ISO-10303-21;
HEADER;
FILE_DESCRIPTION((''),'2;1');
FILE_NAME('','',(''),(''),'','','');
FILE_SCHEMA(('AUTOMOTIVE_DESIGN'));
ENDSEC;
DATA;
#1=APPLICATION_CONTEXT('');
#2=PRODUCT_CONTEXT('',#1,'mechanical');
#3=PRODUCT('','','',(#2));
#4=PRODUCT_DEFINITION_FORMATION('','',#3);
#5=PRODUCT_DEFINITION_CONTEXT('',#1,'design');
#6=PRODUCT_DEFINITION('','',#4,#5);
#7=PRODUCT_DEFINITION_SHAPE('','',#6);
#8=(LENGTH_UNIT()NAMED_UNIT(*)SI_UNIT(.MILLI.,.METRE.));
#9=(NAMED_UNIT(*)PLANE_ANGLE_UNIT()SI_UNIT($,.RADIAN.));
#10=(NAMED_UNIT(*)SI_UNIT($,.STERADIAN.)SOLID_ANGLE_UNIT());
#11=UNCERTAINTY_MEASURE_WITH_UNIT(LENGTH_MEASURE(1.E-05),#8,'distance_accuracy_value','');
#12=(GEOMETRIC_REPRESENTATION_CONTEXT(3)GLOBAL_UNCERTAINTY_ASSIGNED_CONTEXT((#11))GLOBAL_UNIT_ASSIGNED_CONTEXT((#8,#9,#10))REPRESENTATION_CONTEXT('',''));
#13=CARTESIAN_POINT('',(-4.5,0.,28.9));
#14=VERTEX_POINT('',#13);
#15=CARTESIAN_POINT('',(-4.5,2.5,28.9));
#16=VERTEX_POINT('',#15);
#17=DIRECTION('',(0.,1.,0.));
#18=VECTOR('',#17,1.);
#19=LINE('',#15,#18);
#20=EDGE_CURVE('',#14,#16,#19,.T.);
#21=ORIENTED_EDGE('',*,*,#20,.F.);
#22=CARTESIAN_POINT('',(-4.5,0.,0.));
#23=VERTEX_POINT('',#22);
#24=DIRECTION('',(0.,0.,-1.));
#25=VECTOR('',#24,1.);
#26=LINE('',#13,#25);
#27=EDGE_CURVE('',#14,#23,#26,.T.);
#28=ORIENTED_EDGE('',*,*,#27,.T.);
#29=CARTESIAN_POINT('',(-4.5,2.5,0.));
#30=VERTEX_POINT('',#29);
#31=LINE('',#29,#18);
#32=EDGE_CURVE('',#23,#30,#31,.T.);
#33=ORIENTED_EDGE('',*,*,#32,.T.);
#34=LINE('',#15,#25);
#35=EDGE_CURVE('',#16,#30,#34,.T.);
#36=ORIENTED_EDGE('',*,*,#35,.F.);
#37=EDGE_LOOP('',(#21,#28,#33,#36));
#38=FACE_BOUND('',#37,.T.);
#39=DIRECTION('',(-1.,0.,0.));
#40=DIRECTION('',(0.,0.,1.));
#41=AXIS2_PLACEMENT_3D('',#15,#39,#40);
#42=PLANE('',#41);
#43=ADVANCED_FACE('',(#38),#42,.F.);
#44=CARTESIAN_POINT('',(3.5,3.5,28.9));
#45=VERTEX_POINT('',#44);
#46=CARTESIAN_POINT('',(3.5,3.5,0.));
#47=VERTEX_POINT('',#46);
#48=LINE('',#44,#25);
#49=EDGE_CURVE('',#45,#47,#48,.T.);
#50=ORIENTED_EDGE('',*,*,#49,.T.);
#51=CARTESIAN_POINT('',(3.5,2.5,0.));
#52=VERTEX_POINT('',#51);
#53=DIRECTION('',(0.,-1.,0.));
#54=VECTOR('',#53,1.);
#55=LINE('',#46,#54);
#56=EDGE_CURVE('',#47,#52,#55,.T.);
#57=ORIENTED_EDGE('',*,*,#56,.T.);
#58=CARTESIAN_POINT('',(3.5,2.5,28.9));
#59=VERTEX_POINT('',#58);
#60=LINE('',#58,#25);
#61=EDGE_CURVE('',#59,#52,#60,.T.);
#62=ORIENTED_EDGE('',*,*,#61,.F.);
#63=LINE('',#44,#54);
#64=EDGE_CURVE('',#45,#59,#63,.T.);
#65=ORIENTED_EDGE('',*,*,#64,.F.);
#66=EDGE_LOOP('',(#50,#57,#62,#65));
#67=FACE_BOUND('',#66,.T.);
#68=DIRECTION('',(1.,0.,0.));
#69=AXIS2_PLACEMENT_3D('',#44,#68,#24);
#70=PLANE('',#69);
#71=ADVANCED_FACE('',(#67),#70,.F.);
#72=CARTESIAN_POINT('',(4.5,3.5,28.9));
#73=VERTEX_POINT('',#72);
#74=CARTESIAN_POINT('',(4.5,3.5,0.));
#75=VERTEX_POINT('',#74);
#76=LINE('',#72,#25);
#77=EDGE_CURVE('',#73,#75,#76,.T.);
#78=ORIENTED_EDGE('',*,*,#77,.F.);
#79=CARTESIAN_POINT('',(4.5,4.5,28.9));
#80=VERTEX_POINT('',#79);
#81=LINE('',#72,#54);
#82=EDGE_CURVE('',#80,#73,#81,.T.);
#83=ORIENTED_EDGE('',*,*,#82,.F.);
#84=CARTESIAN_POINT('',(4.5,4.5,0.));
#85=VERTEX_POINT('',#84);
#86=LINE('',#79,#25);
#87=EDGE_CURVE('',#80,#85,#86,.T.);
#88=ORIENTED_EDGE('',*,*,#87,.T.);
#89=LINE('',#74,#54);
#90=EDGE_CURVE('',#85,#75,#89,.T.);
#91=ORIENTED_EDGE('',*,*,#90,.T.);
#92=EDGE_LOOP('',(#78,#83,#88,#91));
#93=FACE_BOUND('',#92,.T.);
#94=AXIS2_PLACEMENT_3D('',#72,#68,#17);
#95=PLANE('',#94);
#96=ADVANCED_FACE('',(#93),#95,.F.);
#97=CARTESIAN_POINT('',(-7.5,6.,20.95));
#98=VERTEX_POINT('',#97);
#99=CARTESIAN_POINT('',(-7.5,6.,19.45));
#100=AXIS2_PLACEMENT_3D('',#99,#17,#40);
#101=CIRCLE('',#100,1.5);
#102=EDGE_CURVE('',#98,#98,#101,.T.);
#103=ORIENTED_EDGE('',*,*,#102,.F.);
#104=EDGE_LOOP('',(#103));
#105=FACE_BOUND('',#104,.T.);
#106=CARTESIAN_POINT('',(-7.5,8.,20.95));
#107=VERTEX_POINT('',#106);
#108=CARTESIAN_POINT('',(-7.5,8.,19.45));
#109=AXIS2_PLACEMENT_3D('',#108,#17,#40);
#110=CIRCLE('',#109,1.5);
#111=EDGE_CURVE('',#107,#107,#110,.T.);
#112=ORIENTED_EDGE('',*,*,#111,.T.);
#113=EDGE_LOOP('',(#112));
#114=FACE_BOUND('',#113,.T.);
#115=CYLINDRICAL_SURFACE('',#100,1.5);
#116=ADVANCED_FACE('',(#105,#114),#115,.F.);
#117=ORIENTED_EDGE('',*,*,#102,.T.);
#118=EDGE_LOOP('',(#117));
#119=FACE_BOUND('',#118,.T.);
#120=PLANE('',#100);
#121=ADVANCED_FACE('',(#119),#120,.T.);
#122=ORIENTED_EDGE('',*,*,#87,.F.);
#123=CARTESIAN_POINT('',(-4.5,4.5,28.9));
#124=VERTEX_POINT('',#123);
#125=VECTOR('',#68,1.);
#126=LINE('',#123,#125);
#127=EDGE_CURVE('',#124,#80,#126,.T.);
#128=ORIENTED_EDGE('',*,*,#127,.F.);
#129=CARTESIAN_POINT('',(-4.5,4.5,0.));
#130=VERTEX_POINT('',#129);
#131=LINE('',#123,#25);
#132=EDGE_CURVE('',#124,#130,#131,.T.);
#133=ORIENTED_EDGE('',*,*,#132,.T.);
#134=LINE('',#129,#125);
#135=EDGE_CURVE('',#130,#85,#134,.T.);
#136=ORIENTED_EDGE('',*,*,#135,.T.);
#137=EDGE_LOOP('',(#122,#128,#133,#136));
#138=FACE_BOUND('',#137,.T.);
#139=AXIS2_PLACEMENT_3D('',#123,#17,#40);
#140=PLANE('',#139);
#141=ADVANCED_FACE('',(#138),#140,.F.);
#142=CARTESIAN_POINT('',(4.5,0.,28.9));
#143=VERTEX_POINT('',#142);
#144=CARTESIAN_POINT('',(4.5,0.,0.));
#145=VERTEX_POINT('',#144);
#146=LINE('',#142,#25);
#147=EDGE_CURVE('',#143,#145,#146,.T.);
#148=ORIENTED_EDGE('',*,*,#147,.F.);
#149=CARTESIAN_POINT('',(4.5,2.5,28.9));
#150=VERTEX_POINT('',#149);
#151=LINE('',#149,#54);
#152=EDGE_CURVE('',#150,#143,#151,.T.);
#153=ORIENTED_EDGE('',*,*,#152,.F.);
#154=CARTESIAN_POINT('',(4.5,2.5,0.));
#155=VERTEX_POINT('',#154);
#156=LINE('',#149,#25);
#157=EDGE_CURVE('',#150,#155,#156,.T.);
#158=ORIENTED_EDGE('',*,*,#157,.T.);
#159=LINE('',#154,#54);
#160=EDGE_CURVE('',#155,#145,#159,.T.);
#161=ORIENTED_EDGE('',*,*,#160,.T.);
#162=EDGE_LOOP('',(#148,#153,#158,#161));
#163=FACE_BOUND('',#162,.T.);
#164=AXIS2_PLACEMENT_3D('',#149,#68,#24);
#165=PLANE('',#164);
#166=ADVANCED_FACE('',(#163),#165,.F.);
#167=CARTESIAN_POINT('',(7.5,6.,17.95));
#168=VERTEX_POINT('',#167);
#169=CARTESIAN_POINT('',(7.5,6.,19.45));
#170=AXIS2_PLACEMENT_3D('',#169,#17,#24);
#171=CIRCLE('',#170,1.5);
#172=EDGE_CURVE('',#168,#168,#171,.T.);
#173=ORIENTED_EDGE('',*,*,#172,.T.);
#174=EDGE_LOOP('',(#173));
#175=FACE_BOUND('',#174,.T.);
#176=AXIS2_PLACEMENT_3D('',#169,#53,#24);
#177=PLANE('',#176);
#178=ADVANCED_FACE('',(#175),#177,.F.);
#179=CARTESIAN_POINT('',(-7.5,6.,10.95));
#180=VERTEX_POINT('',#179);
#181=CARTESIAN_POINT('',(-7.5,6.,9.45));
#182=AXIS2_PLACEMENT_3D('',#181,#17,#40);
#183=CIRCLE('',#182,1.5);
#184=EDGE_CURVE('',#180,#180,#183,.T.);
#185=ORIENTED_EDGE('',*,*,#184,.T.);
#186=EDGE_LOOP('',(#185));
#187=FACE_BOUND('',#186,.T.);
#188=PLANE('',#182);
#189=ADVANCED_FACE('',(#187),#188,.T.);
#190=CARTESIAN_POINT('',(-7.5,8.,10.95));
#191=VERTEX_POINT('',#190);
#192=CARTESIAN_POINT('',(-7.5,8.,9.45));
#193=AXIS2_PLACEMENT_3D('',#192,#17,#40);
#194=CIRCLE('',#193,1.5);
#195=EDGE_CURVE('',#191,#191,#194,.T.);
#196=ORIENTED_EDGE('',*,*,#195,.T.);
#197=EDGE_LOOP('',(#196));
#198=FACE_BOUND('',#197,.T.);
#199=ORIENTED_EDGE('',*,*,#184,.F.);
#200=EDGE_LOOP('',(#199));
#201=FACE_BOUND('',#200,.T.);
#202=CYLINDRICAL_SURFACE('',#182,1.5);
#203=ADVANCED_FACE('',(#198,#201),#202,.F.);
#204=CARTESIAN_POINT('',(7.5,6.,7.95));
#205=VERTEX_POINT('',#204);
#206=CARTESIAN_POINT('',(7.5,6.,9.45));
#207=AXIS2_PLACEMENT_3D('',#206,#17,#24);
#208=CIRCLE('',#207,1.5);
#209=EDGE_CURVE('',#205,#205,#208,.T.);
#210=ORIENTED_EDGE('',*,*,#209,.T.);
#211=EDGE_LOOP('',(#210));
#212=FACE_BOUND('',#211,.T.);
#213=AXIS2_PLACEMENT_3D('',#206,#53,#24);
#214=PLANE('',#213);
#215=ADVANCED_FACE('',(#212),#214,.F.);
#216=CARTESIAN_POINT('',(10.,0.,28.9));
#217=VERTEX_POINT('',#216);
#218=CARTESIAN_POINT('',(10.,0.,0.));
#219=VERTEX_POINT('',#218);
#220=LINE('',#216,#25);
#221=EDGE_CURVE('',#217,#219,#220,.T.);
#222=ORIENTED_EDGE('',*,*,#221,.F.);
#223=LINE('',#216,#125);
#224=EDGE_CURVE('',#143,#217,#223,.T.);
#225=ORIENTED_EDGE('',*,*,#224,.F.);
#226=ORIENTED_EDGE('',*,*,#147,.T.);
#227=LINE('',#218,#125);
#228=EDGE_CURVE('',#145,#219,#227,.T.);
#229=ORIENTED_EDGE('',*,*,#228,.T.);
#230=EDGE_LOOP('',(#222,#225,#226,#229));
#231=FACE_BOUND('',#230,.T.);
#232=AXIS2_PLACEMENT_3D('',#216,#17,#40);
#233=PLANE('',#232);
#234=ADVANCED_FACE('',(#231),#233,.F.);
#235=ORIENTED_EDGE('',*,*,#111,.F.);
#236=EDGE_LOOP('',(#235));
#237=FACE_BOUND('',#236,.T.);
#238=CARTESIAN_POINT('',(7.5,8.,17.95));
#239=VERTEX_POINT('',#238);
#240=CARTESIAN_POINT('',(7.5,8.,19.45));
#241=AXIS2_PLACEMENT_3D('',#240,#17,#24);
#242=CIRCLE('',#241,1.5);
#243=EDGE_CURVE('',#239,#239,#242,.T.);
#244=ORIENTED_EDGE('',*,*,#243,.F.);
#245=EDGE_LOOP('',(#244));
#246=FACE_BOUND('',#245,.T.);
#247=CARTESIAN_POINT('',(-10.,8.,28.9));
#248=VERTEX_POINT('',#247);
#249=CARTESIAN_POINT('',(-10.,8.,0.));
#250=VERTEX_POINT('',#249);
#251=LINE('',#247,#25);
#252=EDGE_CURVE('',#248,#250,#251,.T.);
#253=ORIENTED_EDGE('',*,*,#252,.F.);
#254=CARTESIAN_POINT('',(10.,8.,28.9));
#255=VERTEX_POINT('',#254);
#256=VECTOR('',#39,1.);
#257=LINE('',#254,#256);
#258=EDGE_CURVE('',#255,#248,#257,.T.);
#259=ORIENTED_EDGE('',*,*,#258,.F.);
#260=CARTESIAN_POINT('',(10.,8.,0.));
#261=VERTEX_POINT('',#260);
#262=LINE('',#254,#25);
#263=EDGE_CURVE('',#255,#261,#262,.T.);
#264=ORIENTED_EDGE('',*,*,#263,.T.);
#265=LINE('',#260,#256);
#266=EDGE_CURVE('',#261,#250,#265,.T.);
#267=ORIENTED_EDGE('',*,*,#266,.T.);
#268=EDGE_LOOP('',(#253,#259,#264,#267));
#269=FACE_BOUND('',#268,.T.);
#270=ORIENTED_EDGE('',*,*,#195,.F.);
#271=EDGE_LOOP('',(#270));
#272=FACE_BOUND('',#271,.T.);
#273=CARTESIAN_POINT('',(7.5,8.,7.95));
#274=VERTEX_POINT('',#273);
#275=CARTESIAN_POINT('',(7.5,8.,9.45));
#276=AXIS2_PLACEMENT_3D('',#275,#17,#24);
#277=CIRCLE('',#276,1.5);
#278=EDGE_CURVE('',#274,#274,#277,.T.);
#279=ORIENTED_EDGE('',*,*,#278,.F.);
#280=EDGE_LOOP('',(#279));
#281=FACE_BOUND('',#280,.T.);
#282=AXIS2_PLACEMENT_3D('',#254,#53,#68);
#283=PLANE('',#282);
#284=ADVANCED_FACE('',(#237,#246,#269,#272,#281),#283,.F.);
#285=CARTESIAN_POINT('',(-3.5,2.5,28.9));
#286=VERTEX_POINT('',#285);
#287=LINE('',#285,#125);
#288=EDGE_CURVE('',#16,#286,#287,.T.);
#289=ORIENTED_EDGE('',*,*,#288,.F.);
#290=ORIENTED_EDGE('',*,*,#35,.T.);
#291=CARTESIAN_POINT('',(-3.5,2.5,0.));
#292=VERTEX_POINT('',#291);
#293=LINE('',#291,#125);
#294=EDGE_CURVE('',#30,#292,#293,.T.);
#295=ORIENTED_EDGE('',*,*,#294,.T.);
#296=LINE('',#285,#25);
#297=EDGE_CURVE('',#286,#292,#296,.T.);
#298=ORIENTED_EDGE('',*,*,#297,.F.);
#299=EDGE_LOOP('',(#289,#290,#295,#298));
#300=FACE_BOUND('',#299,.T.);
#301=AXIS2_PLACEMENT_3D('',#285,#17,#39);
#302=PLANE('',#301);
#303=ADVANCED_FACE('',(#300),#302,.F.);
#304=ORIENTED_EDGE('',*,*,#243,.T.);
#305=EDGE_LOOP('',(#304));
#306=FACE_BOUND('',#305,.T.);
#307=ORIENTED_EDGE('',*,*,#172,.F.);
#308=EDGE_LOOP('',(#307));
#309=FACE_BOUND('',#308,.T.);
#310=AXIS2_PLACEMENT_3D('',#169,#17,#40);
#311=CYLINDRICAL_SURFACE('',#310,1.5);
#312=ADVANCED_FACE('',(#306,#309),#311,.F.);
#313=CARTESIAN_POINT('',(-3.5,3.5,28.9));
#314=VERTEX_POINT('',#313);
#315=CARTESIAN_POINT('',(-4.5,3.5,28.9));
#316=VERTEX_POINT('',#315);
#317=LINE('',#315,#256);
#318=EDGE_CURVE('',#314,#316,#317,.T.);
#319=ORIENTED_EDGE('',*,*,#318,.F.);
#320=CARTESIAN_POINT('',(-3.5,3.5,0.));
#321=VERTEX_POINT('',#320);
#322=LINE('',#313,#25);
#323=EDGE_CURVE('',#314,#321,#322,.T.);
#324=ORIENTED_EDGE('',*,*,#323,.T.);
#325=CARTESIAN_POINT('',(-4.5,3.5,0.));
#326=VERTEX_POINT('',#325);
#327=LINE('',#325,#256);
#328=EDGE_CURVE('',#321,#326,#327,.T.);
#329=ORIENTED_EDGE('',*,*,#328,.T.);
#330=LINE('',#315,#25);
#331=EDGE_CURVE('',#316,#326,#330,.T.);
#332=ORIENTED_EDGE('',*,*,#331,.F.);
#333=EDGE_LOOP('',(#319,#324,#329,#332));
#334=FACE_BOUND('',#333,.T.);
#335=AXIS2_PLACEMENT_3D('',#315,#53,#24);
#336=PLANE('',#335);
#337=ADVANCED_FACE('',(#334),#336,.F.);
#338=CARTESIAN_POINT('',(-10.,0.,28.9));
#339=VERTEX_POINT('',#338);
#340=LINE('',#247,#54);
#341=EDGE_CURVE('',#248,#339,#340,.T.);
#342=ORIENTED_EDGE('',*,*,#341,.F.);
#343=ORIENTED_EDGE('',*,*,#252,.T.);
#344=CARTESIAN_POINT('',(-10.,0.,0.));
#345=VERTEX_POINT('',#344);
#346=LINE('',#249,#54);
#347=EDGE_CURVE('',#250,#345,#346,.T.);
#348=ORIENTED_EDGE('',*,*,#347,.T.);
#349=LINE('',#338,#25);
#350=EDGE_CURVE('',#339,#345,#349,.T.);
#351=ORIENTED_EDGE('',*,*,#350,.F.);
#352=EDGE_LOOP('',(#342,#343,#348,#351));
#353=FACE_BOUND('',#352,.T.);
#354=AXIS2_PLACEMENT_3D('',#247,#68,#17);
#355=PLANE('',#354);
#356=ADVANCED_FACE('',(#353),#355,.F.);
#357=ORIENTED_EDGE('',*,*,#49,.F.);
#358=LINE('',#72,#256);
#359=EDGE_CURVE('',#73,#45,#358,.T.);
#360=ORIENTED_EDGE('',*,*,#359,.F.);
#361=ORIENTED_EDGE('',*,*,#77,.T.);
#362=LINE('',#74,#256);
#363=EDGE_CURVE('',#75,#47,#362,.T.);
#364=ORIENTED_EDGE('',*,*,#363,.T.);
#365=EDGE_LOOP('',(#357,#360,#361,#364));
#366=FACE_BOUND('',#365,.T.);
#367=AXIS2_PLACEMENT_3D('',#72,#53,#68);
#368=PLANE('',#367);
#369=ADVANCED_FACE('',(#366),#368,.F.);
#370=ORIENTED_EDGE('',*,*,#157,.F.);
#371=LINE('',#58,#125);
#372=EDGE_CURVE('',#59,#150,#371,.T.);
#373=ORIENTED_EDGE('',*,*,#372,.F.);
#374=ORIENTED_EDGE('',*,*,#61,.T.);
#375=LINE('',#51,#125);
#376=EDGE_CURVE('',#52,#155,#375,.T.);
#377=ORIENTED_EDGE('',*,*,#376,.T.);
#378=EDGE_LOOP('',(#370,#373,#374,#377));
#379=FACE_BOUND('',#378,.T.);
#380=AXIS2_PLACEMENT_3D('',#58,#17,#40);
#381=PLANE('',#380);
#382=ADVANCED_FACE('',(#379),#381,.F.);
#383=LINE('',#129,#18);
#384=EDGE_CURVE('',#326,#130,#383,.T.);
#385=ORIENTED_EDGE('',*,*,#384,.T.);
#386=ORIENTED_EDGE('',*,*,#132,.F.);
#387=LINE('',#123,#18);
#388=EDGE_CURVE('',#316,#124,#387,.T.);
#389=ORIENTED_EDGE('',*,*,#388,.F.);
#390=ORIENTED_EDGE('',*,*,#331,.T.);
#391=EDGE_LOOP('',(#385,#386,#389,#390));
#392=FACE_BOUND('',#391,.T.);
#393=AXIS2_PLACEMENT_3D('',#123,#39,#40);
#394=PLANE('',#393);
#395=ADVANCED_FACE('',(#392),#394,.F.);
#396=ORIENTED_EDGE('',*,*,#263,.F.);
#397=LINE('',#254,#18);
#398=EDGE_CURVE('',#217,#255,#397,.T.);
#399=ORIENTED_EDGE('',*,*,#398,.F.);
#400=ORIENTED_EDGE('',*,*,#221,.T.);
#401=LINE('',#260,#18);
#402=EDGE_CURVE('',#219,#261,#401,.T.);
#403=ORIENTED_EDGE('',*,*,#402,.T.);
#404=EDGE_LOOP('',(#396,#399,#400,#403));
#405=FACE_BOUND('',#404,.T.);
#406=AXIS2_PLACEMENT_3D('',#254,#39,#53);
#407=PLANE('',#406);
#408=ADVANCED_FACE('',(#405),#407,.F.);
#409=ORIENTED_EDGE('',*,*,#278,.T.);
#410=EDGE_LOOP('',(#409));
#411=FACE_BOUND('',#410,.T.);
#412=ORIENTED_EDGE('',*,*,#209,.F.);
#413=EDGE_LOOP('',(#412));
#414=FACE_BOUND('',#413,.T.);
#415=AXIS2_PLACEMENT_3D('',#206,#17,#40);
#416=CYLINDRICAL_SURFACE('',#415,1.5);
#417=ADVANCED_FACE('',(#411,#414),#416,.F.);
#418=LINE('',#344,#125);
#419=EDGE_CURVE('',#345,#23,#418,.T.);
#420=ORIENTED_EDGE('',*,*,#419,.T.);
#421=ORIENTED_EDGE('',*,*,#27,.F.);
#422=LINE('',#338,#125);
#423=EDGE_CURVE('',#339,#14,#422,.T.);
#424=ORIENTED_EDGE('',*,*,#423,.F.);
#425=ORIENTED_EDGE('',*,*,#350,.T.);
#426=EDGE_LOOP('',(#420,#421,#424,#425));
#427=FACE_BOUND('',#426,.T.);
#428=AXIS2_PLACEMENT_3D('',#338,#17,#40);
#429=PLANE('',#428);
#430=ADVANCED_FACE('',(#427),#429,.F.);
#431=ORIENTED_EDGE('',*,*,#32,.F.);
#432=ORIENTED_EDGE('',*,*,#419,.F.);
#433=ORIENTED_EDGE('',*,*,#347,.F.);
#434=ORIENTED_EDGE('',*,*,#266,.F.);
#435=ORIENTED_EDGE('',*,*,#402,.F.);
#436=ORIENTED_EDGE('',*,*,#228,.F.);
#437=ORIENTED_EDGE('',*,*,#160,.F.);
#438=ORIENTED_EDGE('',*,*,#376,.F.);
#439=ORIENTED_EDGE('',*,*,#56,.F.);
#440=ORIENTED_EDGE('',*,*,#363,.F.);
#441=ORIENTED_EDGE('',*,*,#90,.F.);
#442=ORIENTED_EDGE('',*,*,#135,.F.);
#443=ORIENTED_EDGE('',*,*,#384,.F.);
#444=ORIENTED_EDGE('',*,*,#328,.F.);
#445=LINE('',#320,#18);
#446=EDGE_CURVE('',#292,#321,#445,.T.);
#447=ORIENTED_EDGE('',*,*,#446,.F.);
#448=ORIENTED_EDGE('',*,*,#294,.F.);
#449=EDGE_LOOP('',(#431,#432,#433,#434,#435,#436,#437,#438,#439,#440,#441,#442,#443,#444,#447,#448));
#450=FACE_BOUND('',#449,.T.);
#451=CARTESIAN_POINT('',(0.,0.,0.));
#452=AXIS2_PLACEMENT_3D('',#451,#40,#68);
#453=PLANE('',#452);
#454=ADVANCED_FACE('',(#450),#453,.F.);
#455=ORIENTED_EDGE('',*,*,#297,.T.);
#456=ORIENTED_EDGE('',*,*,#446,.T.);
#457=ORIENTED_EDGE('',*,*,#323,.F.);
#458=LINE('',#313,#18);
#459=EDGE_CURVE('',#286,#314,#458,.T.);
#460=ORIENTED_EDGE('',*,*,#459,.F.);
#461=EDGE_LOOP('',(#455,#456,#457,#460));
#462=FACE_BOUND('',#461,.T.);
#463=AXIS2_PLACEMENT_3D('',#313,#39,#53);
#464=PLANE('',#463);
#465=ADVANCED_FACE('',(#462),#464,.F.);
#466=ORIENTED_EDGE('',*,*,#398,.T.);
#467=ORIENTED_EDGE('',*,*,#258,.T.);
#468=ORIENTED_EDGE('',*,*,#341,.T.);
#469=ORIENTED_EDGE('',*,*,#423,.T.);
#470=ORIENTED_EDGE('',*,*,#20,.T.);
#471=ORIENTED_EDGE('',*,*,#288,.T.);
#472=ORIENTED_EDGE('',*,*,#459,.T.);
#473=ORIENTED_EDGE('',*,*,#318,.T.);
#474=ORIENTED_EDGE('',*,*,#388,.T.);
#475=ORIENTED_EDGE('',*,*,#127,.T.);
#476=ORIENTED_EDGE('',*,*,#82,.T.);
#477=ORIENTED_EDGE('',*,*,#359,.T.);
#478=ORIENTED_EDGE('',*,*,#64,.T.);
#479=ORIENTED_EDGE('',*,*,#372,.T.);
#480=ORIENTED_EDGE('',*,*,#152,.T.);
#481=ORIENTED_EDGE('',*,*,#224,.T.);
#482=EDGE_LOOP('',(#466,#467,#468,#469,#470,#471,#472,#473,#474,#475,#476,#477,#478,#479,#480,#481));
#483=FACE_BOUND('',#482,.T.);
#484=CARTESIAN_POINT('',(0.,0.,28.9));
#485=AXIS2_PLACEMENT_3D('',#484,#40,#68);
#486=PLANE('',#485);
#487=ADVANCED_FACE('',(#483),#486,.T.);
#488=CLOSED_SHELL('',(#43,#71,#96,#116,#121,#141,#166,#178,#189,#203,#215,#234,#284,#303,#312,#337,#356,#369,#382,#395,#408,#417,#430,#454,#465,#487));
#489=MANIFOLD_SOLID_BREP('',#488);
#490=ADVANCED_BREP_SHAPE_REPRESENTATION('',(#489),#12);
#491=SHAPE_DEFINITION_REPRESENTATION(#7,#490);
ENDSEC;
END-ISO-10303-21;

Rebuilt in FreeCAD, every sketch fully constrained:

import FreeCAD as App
import Part
import Sketcher


def add_polygon(sketch, points):
    """Adds a closed chain of lines whose ends are joined by coincident constraints."""
    first, n = sketch.GeometryCount, len(points)
    for a, b in zip(points, points[1:] + points[:1]):
        sketch.addGeometry(Part.LineSegment(App.Vector(*a, 0), App.Vector(*b, 0)), False)
    for i in range(n):
        sketch.addConstraint(Sketcher.Constraint("Coincident", first + i, 2, first + (i + 1) % n, 1))

doc = App.newDocument("Part")
body = doc.addObject("PartDesign::Body", "Body")

sketch1 = doc.addObject("Sketcher::SketchObject", "Sketch")
body.addObject(sketch1)
sketch1.AttachmentSupport = (doc.XY_Plane, [""])
sketch1.MapMode = "FlatFace"
add_polygon(sketch1, [(10, 8), (-10, 8), (-10, 0), (-4.5, 0), (-4.5, 2.5), (-3.5, 2.5), (-3.5, 3.5), (-4.5, 3.5), (-4.5, 4.5), (4.5, 4.5), (4.5, 3.5), (3.5, 3.5), (3.5, 2.5), (4.5, 2.5), (4.5, 0), (10, 0)])
sketch1.addConstraint([
    Sketcher.Constraint("Horizontal", 0),
    Sketcher.Constraint("Vertical", 1),
    Sketcher.Constraint("Horizontal", 2),
    Sketcher.Constraint("Vertical", 3),
    Sketcher.Constraint("Horizontal", 4),
    Sketcher.Constraint("Vertical", 5),
    Sketcher.Constraint("Horizontal", 6),
    Sketcher.Constraint("Vertical", 7),
    Sketcher.Constraint("Horizontal", 8),
    Sketcher.Constraint("Vertical", 9),
    Sketcher.Constraint("Horizontal", 10),
    Sketcher.Constraint("Vertical", 11),
    Sketcher.Constraint("Horizontal", 12),
    Sketcher.Constraint("Vertical", 13),
    Sketcher.Constraint("Horizontal", 14),
    Sketcher.Constraint("Vertical", 15),
    Sketcher.Constraint("Symmetric", 2, 2, 13, 2, -1, 1),
    Sketcher.Constraint("Symmetric", 6, 2, 9, 2, -2),
    Sketcher.Constraint("Symmetric", 4, 2, 11, 2, -2),
    Sketcher.Constraint("Symmetric", 1, 2, 14, 2, -2),
    Sketcher.Constraint("Vertical", 3, 2, 6, 2),
    Sketcher.Constraint("Equal", 12, 5),
    Sketcher.Constraint("Equal", 5, 7),
    Sketcher.Constraint("DistanceX", 0, 2, 0, 1, 20.0),
    Sketcher.Constraint("DistanceX", 4, 1, 4, 2, 1.0),
    Sketcher.Constraint("DistanceX", 8, 1, 8, 2, 9.0),
    Sketcher.Constraint("DistanceY", 1, 2, 1, 1, 8.0),
    Sketcher.Constraint("DistanceY", 3, 1, 3, 2, 2.5),
])
pad1 = doc.addObject("PartDesign::Pad", "Pad")
body.addObject(pad1)
pad1.Profile = sketch1
pad1.Length = 28.9

sketch2 = doc.addObject("Sketcher::SketchObject", "Sketch001")
body.addObject(sketch2)
sketch2.AttachmentSupport = (doc.XZ_Plane, [""])
sketch2.MapMode = "FlatFace"
sketch2.AttachmentOffset = App.Placement(App.Vector(0, 0, -8), App.Rotation())
sketch2.addGeometry([
    Part.Circle(App.Vector(-7.5, 9.4, 0), App.Vector(0, 0, 1), 1.5),
    Part.Circle(App.Vector(-7.5, 19.4, 0), App.Vector(0, 0, 1), 1.5),
    Part.Circle(App.Vector(7.5, 19.4, 0), App.Vector(0, 0, 1), 1.5),
    Part.Circle(App.Vector(7.5, 9.4, 0), App.Vector(0, 0, 1), 1.5),
], False)
sketch2.addConstraint([
    Sketcher.Constraint("Equal", 0, 1),
    Sketcher.Constraint("Equal", 1, 2),
    Sketcher.Constraint("Equal", 2, 3),
    Sketcher.Constraint("Symmetric", 1, 3, 2, 3, -2),
    Sketcher.Constraint("Symmetric", 0, 3, 3, 3, -2),
    Sketcher.Constraint("Vertical", 0, 3, 1, 3),
    Sketcher.Constraint("Diameter", 0, 3.0),
    Sketcher.Constraint("DistanceY", 0, 3, 1, 3, 10.0),
    Sketcher.Constraint("DistanceX", 1, 3, 2, 3, 15.0),
    Sketcher.Constraint("DistanceY", -1, 1, 0, 3, 9.45),
])
pocket1 = doc.addObject("PartDesign::Pocket", "Pocket")
body.addObject(pocket1)
pocket1.Profile = sketch2
pocket1.Length = 2
pocket1.Reversed = True

doc.recompute()
